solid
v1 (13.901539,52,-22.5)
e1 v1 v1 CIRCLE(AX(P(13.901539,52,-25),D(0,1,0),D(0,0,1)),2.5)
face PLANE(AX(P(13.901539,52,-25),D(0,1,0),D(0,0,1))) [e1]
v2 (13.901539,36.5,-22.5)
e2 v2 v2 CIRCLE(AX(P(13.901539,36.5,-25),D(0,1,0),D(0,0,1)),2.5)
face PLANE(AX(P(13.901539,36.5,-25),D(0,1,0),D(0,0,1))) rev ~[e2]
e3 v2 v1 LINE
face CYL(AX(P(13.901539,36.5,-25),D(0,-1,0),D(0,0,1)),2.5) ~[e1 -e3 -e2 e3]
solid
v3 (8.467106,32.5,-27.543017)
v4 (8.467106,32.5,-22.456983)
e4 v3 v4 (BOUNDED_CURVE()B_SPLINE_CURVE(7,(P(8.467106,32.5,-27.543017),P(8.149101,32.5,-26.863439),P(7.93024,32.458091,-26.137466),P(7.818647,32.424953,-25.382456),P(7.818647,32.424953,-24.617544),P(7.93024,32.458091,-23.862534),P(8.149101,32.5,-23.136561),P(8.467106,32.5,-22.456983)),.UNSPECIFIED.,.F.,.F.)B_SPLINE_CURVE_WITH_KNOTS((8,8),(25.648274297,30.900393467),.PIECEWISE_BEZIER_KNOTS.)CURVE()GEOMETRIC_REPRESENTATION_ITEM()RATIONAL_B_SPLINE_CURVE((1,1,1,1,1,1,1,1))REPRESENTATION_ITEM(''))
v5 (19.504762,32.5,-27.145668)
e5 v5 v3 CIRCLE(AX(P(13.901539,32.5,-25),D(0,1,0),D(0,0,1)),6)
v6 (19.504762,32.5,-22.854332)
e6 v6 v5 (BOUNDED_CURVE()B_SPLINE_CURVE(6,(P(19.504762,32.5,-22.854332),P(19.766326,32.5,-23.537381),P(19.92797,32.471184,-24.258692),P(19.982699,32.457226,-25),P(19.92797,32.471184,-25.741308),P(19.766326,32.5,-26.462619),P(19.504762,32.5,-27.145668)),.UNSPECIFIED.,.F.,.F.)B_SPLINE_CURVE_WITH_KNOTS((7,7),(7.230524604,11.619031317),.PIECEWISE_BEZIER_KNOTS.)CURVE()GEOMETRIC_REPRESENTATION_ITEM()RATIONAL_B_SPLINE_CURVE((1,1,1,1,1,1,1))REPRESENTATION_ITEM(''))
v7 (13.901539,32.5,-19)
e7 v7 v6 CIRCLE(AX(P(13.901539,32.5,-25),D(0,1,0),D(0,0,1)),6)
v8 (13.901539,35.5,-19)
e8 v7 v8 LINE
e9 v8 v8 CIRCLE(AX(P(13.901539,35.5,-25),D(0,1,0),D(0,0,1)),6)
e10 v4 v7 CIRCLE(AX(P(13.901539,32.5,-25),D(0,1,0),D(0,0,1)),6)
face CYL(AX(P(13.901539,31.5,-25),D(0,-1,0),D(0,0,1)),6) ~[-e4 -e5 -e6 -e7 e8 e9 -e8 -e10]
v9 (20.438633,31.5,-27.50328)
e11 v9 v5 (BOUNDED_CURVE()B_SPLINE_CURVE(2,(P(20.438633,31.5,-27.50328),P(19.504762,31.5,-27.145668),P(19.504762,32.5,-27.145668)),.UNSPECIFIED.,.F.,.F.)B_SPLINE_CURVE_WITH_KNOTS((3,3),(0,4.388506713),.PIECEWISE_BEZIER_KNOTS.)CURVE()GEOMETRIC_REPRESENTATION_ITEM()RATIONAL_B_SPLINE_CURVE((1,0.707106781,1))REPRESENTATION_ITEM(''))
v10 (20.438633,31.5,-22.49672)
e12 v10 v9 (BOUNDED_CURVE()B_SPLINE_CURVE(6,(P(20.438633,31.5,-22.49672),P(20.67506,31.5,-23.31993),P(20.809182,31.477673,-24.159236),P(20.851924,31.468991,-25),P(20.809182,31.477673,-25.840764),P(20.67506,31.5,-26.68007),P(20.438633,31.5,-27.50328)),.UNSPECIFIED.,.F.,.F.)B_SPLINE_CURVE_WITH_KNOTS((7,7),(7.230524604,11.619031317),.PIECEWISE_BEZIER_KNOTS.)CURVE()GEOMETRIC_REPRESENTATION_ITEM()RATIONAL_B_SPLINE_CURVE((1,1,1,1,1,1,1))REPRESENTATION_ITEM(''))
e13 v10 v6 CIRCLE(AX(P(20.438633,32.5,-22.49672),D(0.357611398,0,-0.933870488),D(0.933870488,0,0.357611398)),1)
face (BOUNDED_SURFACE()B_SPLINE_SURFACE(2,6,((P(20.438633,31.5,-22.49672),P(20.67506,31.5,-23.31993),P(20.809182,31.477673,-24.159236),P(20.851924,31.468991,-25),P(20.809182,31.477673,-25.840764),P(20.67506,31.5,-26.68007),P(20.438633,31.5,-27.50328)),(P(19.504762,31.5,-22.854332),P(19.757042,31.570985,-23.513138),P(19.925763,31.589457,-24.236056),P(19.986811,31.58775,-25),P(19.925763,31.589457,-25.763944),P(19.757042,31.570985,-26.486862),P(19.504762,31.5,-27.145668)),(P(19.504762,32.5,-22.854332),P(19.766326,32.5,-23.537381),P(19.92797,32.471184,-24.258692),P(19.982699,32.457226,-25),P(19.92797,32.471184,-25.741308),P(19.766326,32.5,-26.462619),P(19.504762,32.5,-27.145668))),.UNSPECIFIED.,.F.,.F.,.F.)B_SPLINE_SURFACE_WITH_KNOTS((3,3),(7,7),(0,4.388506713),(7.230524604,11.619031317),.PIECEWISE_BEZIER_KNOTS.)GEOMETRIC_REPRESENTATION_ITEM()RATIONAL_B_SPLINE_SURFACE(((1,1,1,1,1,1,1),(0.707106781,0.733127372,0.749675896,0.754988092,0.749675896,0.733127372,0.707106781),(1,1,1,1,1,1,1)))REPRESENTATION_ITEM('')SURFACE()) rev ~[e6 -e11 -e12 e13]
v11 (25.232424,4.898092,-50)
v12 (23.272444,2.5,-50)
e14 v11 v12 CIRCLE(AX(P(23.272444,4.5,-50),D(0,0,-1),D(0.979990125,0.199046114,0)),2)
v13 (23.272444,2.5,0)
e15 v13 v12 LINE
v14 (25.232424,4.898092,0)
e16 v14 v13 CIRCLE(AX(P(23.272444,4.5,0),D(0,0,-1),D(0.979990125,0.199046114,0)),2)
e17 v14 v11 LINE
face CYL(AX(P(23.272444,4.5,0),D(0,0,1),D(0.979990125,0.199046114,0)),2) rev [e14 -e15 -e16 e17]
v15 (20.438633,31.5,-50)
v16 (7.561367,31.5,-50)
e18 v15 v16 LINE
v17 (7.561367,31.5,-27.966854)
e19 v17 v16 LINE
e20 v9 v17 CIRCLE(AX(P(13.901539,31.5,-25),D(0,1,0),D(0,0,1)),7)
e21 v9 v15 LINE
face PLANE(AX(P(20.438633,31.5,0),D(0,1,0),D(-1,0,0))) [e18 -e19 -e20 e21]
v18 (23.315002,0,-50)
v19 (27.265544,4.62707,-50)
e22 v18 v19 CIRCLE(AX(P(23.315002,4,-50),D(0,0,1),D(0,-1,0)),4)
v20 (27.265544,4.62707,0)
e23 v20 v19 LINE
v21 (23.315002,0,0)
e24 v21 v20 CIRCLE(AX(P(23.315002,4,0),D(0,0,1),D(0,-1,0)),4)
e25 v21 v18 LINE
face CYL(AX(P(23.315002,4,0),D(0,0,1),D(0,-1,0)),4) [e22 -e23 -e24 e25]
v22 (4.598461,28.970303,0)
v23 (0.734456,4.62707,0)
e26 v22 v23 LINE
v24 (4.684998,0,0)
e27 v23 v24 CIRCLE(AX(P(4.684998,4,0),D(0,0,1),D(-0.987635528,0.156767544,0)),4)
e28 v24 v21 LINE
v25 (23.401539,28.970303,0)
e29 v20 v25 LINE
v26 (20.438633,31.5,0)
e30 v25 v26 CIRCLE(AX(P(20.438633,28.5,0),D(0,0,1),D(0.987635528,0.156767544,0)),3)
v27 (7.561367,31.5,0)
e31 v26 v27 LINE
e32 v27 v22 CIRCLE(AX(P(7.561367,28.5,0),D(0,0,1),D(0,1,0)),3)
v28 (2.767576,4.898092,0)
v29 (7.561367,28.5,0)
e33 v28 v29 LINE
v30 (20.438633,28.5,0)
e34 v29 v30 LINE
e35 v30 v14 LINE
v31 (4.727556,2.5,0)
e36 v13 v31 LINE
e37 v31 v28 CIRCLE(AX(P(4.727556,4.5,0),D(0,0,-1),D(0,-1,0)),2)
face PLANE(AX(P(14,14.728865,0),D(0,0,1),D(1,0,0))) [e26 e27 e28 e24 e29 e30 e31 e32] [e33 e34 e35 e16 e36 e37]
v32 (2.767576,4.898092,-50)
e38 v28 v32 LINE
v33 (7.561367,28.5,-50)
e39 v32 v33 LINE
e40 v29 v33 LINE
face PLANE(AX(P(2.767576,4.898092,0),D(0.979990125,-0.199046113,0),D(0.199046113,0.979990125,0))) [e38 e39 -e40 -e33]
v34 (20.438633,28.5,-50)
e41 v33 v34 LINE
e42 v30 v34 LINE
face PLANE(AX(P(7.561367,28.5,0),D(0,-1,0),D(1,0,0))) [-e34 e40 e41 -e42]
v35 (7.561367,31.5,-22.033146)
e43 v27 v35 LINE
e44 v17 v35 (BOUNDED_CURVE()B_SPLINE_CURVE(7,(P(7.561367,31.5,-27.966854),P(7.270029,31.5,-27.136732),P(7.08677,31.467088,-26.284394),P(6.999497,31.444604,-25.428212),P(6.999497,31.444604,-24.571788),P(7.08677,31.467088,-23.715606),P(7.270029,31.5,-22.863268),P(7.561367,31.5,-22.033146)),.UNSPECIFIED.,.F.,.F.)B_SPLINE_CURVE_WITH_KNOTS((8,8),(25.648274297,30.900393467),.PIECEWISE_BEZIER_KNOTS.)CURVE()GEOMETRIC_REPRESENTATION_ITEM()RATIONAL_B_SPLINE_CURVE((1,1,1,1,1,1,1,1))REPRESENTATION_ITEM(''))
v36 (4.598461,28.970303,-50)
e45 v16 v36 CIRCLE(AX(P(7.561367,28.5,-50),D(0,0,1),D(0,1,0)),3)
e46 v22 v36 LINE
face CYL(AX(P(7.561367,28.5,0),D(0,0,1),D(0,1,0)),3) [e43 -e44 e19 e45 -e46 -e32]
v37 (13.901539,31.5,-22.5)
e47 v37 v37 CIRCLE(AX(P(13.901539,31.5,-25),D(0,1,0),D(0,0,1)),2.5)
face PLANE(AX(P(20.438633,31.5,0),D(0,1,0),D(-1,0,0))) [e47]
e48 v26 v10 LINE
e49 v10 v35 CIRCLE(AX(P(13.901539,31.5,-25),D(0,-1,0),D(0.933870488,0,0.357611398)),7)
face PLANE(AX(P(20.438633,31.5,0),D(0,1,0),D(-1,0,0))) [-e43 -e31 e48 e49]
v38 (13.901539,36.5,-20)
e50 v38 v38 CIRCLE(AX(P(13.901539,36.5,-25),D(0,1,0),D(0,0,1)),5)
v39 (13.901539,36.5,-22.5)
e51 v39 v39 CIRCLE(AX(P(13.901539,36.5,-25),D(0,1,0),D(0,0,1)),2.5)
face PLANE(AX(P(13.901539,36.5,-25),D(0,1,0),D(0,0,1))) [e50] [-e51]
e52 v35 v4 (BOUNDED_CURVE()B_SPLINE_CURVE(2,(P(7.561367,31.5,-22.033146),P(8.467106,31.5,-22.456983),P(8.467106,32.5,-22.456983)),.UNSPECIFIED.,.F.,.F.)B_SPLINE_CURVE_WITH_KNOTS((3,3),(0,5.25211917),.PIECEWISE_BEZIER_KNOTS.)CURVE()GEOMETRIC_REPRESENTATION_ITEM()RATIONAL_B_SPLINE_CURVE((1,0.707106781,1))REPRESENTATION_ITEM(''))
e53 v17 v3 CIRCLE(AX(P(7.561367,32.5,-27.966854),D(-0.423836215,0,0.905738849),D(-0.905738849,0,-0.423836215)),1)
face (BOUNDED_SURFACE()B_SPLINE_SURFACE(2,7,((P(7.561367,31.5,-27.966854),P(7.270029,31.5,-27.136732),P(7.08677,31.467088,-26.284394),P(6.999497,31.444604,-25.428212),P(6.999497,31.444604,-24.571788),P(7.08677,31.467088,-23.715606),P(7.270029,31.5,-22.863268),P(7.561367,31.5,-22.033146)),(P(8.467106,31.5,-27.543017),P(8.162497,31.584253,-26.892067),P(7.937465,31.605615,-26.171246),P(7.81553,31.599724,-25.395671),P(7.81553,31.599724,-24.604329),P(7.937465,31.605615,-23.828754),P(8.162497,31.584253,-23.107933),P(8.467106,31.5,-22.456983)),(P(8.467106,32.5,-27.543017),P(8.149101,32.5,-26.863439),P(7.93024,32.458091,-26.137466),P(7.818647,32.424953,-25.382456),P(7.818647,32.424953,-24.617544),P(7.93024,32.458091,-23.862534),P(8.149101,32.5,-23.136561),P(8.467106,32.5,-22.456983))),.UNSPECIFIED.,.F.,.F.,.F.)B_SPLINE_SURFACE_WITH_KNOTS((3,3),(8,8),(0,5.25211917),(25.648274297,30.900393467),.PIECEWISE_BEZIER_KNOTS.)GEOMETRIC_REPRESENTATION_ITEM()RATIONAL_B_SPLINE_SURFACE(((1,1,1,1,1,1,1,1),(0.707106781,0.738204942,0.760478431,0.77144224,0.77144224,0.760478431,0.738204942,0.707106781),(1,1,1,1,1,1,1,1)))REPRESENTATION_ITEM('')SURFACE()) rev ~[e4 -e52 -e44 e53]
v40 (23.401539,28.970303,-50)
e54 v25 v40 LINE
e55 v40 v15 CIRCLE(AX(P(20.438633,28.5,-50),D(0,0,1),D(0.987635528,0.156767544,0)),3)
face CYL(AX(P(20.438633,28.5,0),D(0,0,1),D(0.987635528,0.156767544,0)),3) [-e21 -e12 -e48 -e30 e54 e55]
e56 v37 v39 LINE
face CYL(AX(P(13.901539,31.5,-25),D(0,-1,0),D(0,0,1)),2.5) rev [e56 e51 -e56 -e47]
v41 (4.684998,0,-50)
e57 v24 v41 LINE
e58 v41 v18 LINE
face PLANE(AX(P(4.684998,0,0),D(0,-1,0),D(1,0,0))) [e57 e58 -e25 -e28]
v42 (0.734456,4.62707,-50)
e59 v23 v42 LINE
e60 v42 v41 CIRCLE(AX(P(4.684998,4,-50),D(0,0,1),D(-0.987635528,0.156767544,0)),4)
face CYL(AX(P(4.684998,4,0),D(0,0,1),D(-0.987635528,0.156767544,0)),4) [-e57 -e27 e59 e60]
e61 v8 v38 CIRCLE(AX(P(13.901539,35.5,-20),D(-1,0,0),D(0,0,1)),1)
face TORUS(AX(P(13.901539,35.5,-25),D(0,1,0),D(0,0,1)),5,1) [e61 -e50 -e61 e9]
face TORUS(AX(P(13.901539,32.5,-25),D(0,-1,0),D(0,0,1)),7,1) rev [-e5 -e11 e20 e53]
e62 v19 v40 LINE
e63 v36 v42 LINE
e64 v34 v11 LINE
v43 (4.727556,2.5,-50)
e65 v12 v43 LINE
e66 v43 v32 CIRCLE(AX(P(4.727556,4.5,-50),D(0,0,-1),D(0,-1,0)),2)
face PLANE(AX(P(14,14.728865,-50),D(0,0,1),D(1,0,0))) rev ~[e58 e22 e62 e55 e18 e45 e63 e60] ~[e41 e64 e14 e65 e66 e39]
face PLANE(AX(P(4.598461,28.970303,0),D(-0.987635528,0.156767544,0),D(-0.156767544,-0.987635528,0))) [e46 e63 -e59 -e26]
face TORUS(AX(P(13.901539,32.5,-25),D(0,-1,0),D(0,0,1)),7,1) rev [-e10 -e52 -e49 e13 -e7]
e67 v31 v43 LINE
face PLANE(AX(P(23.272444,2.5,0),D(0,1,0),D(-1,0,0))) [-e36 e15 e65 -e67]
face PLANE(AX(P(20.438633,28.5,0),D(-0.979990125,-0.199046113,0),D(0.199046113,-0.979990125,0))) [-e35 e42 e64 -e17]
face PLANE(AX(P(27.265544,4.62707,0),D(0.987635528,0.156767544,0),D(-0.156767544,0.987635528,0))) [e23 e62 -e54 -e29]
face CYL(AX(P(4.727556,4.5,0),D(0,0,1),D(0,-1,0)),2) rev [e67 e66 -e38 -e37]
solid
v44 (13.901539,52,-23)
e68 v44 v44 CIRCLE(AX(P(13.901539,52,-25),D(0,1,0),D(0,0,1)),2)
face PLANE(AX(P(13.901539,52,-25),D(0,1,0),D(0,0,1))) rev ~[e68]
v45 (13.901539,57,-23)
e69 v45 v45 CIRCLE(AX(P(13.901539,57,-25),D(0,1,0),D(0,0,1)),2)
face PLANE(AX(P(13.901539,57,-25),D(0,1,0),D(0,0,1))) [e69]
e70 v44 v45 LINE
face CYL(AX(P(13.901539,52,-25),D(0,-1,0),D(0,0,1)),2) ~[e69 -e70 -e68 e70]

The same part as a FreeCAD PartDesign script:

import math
import FreeCAD as App
import Part
import Sketcher
from FreeCAD import Vector
Q = App.Units.Quantity


def edges_at(feature, points):
    """Names of the edges that pass closest to the given points."""
    edges = feature.Shape.Edges
    near = lambda p: min(range(len(edges)), key=lambda i: edges[i].distToShape(Part.Vertex(*p))[0])
    return sorted({f"Edge{near(p) + 1}" for p in points})

doc = App.newDocument("Part")
body = doc.addObject("PartDesign::Body", "Body")

sketch1 = body.newObject("Sketcher::SketchObject", "Sketch")
sketch1.AttachmentSupport = (doc.getObject("XY_Plane"), [""])
sketch1.MapMode = "FlatFace"
sketch1.addGeometry([
    Part.LineSegment(Vector(4.7, 0, 0), Vector(23.3, 0, 0)),
    Part.ArcOfCircle(Part.Circle(Vector(23.3, 4, 0), Vector(0, 0, 1), 4), math.radians(-90), math.radians(9)),
    Part.LineSegment(Vector(27.3, 4.6, 0), Vector(23.4, 29, 0)),
    Part.ArcOfCircle(Part.Circle(Vector(20.4, 28.5, 0), Vector(0, 0, 1), 3), math.radians(9), math.radians(90)),
    Part.LineSegment(Vector(20.4, 31.5, 0), Vector(7.6, 31.5, 0)),
    Part.ArcOfCircle(Part.Circle(Vector(7.6, 28.5, 0), Vector(0, 0, 1), 3), math.radians(90), math.radians(171)),
    Part.LineSegment(Vector(4.6, 29, 0), Vector(0.7, 4.6, 0)),
    Part.ArcOfCircle(Part.Circle(Vector(4.7, 4, 0), Vector(0, 0, 1), 4), math.radians(171), math.radians(270)),
    Part.LineSegment(Vector(2.8, 4.9, 0), Vector(7.6, 28.5, 0)),
    Part.LineSegment(Vector(7.6, 28.5, 0), Vector(20.4, 28.5, 0)),
    Part.LineSegment(Vector(20.4, 28.5, 0), Vector(25.2, 4.9, 0)),
    Part.ArcOfCircle(Part.Circle(Vector(23.3, 4.5, 0), Vector(0, 0, 1), 2), math.radians(-90), math.radians(11)),
    Part.LineSegment(Vector(23.3, 2.5, 0), Vector(4.7, 2.5, 0)),
    Part.ArcOfCircle(Part.Circle(Vector(4.7, 4.5, 0), Vector(0, 0, 1), 2), math.radians(169), math.radians(270)),
], False)
sketch1.addConstraint([
    Sketcher.Constraint("Tangent", 0, 2, 1, 1),
    Sketcher.Constraint("Tangent", 1, 2, 2, 1),
    Sketcher.Constraint("Tangent", 2, 2, 3, 1),
    Sketcher.Constraint("Tangent", 3, 2, 4, 1),
    Sketcher.Constraint("Tangent", 4, 2, 5, 1),
    Sketcher.Constraint("Tangent", 5, 2, 6, 1),
    Sketcher.Constraint("Tangent", 6, 2, 7, 1),
    Sketcher.Constraint("Tangent", 7, 2, 0, 1),
    Sketcher.Constraint("Coincident", 8, 2, 9, 1),
    Sketcher.Constraint("Coincident", 9, 2, 10, 1),
    Sketcher.Constraint("Tangent", 10, 2, 11, 2),
    Sketcher.Constraint("Tangent", 11, 1, 12, 1),
    Sketcher.Constraint("Tangent", 12, 2, 13, 2),
    Sketcher.Constraint("Tangent", 13, 1, 8, 1),
    Sketcher.Constraint("Horizontal", 0),
    Sketcher.Constraint("Horizontal", 4),
    Sketcher.Constraint("Horizontal", 9),
    Sketcher.Constraint("Horizontal", 12),
    Sketcher.Constraint("Coincident", 8, 2, 5, 3),
    Sketcher.Constraint("Coincident", 9, 2, 3, 3),
    Sketcher.Constraint("Equal", 1, 7),
    Sketcher.Constraint("Equal", 11, 13),
    Sketcher.Constraint("PointOnObject", 0, 2, -1),
    Sketcher.Constraint("Horizontal", 2, 2, 5, 2),
    Sketcher.Constraint("Horizontal", 10, 2, 13, 1),
    Sketcher.Constraint("Radius", 1, Q("4 mm")),
    Sketcher.Constraint("Radius", 3, Q("3 mm")),
    Sketcher.Constraint("Radius", 11, Q("2 mm")),
    Sketcher.Constraint("DistanceY", 11, 3, 3, 3, Q("24 mm")),
    Sketcher.Constraint("DistanceY", -1, 1, 3, 3, Q("28.5 mm")),
    Sketcher.Constraint("DistanceX", 11, 3, 1, 2, Q("3.993101 mm")),
    Sketcher.Constraint("Distance", 2, Q("24.647992 mm")),
    Sketcher.Constraint("DistanceX", 0, 1, 0, 2, Q("18.630005 mm")),
    Sketcher.Constraint("DistanceX", -1, 1, 2, 2, Q("23.401539 mm")),
])
pad1 = body.newObject("PartDesign::Pad", "Pad")
pad1.Profile = sketch1
pad1.Length = 50
pad1.Reversed = True

sketch2 = body.newObject("Sketcher::SketchObject", "Sketch001")
sketch2.AttachmentSupport = (doc.getObject("XZ_Plane"), [""])
sketch2.MapMode = "FlatFace"
sketch2.AttachmentOffset = App.Placement(Vector(0, 0, -31.5), App.Rotation())
sketch2.addGeometry([
    Part.Circle(Vector(13.9, -25, 0), Vector(0, 0, 1), 6),
    Part.Circle(Vector(13.9, -25, 0), Vector(0, 0, 1), 2.5),
], False)
sketch2.addConstraint([
    Sketcher.Constraint("Coincident", 1, 3, 0, 3),
    Sketcher.Constraint("Diameter", 0, Q("12 mm")),
    Sketcher.Constraint("Diameter", 1, Q("5 mm")),
    Sketcher.Constraint("DistanceY", 0, 3, -1, 1, Q("25 mm")),
    Sketcher.Constraint("DistanceX", -1, 1, 0, 3, Q("13.901539 mm")),
])
pad2 = body.newObject("PartDesign::Pad", "Pad001")
pad2.Profile = sketch2
pad2.Length = 5
pad2.Reversed = True
doc.recompute()

fillet = body.newObject("PartDesign::Fillet", "Fillet")
fillet.Base = (pad2, edges_at(pad2, [(13.902, 31.5, -31), (13.902, 36.5, -31)]))
fillet.Radius = 1
body2 = doc.addObject("PartDesign::Body", "Body001")

sketch3 = body2.newObject("Sketcher::SketchObject", "Sketch002")
sketch3.AttachmentSupport = (doc.getObject("XZ_Plane001"), [""])
sketch3.MapMode = "FlatFace"
sketch3.AttachmentOffset = App.Placement(Vector(0, 0, -36.5), App.Rotation())
sketch3.addGeometry(Part.Circle(Vector(13.9, -25, 0), Vector(0, 0, 1), 2.5), False)
sketch3.addConstraint([
    Sketcher.Constraint("Diameter", 0, Q("5 mm")),
    Sketcher.Constraint("DistanceY", 0, 3, -1, 1, Q("25 mm")),
    Sketcher.Constraint("DistanceX", -1, 1, 0, 3, Q("13.901539 mm")),
])
pad3 = body2.newObject("PartDesign::Pad", "Pad002")
pad3.Profile = sketch3
pad3.Length = 15.5
pad3.Reversed = True
body3 = doc.addObject("PartDesign::Body", "Body002")

sketch4 = body3.newObject("Sketcher::SketchObject", "Sketch003")
sketch4.AttachmentSupport = (doc.getObject("XZ_Plane002"), [""])
sketch4.MapMode = "FlatFace"
sketch4.AttachmentOffset = App.Placement(Vector(0, 0, -52), App.Rotation())
sketch4.addGeometry(Part.Circle(Vector(13.9, -25, 0), Vector(0, 0, 1), 2), False)
sketch4.addConstraint([
    Sketcher.Constraint("Diameter", 0, Q("4 mm")),
    Sketcher.Constraint("DistanceY", 0, 3, -1, 1, Q("25 mm")),
    Sketcher.Constraint("DistanceX", -1, 1, 0, 3, Q("13.901539 mm")),
])
pad4 = body3.newObject("PartDesign::Pad", "Pad003")
pad4.Profile = sketch4
pad4.Length = 5
pad4.Reversed = True

doc.recompute()
